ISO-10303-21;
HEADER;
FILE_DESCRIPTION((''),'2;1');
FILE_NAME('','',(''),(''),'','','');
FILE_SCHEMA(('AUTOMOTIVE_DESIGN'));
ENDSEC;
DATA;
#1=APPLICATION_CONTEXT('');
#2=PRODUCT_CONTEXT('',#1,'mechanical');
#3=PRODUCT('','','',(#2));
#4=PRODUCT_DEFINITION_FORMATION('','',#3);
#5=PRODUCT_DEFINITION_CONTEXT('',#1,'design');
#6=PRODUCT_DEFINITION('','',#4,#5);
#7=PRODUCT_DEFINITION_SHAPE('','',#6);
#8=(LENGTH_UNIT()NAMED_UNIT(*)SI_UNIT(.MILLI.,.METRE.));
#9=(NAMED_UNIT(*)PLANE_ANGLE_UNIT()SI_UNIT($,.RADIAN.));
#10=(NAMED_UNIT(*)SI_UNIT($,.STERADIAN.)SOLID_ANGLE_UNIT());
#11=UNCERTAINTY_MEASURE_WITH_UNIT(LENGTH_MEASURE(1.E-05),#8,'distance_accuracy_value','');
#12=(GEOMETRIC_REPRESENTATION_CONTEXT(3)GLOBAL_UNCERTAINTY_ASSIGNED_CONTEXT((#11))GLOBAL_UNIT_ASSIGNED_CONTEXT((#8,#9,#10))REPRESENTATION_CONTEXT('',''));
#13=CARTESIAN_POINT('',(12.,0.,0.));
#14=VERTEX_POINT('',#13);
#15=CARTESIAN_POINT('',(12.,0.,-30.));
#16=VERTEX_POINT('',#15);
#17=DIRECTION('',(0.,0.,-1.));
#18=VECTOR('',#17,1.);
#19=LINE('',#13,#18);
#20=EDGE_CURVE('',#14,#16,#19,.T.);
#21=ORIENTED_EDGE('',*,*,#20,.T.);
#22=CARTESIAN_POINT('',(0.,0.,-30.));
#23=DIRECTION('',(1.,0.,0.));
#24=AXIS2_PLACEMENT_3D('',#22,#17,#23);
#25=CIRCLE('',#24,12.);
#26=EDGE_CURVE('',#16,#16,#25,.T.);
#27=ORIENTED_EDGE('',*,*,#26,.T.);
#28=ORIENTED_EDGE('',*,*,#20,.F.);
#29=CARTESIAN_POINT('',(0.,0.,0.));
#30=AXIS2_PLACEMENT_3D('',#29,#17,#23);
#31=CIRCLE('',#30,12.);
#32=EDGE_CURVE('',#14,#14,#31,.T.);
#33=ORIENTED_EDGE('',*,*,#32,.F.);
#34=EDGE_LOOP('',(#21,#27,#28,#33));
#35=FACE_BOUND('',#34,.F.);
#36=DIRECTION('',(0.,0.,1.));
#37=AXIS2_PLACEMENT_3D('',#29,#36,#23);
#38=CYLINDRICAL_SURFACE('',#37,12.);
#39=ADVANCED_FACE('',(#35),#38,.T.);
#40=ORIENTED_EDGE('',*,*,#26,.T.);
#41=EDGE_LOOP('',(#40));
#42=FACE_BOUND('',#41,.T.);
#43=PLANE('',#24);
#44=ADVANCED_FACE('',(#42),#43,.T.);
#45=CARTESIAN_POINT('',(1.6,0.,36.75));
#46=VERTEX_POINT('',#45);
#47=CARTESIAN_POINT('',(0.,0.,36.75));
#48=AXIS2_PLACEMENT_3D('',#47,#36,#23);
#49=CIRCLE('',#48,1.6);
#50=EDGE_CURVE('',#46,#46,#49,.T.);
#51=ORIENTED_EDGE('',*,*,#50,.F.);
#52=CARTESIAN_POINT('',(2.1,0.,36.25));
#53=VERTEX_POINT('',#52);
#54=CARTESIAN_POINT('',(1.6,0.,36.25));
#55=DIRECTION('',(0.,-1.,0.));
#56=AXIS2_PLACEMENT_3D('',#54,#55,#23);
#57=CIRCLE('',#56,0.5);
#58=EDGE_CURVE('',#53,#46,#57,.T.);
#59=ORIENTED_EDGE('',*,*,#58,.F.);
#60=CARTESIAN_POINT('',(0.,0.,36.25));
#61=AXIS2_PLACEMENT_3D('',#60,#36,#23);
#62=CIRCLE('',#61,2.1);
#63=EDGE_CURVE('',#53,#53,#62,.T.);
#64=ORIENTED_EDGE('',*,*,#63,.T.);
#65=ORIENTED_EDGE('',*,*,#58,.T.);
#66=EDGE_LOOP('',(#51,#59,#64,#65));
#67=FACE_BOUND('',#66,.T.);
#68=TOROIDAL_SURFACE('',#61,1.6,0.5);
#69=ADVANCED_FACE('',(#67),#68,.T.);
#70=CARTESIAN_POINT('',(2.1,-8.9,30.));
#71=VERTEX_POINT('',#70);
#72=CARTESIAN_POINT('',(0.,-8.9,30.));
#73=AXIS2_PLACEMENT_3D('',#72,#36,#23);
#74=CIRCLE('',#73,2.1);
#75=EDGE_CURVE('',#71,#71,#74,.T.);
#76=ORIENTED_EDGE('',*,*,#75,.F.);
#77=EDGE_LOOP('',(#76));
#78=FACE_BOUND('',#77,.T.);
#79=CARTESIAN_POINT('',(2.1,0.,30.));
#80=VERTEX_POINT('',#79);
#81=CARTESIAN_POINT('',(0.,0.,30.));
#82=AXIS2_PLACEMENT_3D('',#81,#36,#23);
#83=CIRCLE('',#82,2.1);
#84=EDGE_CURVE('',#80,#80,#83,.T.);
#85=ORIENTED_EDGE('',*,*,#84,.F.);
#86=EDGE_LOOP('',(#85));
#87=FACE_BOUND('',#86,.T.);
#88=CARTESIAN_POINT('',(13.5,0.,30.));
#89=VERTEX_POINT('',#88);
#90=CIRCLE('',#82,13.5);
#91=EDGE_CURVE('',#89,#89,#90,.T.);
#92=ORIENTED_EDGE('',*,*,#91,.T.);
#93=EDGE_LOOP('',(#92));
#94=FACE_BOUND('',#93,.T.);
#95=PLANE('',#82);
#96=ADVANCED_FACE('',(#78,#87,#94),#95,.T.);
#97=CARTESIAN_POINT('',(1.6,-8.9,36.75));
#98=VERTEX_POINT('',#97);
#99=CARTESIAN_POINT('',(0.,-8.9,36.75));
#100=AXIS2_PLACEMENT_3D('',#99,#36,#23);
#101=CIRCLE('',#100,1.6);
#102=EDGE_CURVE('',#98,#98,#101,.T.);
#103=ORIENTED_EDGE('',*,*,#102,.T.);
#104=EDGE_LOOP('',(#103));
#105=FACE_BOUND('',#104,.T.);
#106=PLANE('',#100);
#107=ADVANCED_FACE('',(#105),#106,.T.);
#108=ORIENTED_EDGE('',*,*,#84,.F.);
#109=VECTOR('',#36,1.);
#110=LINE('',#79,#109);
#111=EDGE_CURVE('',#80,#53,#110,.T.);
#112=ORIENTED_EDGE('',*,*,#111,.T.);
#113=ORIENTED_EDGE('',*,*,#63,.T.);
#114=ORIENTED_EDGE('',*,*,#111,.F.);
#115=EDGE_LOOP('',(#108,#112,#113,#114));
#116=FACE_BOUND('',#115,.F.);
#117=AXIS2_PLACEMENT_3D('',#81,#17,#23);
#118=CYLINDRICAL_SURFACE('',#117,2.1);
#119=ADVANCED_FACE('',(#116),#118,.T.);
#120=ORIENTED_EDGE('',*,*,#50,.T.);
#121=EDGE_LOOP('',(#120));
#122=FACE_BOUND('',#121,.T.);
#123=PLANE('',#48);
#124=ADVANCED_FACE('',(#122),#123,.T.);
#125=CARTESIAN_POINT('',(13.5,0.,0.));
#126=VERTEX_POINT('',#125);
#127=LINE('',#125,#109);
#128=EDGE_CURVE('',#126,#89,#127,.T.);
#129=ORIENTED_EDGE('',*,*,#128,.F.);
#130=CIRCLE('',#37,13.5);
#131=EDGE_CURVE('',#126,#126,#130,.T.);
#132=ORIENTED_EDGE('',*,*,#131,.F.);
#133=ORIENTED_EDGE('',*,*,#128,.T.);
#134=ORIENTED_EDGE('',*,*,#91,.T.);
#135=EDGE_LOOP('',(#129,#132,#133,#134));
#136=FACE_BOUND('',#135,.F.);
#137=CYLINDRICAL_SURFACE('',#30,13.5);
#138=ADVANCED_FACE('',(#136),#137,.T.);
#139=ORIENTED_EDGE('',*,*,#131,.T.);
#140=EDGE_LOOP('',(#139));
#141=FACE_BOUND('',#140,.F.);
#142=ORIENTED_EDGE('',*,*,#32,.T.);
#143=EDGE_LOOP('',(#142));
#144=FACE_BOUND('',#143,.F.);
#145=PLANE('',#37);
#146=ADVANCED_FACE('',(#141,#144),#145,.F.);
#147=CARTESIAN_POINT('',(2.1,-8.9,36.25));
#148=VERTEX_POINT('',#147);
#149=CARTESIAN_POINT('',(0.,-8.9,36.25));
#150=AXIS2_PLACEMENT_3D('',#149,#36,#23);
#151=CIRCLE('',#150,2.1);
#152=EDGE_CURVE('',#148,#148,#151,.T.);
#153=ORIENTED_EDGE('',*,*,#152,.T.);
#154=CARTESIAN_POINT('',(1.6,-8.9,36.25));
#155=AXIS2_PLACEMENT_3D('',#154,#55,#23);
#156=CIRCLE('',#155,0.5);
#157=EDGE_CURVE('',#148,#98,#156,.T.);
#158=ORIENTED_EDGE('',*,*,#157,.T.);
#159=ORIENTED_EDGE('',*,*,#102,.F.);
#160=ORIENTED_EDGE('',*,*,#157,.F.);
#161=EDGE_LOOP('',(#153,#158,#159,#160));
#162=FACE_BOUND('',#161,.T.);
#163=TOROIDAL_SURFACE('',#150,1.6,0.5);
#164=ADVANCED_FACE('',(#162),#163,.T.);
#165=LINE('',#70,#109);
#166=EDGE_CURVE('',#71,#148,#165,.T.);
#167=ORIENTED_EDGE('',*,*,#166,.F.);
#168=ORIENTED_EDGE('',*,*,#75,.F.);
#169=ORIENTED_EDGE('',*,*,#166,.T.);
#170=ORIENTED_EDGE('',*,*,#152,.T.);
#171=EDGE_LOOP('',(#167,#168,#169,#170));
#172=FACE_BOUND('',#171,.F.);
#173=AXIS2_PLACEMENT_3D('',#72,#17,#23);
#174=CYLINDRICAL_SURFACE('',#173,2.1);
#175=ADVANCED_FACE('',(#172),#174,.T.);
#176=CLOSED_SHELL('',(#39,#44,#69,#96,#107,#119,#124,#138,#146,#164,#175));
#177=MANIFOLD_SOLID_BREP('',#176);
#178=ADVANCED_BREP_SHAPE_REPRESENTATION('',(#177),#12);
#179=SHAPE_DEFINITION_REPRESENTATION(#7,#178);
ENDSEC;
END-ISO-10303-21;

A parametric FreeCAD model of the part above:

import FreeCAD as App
import Part
import Sketcher
from FreeCAD import Vector


def edges_at(feature, points):
    """Names of the edges that pass closest to the given points."""
    edges = feature.Shape.Edges
    near = lambda p: min(range(len(edges)), key=lambda i: edges[i].distToShape(Part.Vertex(*p))[0])
    return sorted({f"Edge{near(p) + 1}" for p in points})

doc = App.newDocument("Part")
body = doc.addObject("PartDesign::Body", "Body")

# Sketch on XY plane
sketch1 = body.newObject("Sketcher::SketchObject", "Sketch")
sketch1.AttachmentSupport = (doc.getObject("XY_Plane"), [""])
sketch1.MapMode = "FlatFace"
sketch1.addGeometry(Part.Circle(Vector(0, 0, 0), Vector(0, 0, 1), 14), False)
sketch1.addConstraint([
    Sketcher.Constraint("Coincident", 0, 3, -1, 1),
    Sketcher.Constraint("Diameter", 0, 27.0),
])
pad1 = body.newObject("PartDesign::Pad", "Pad")
pad1.Profile = sketch1
pad1.Length = 30

# Sketch on XY plane
sketch2 = body.newObject("Sketcher::SketchObject", "Sketch001")
sketch2.AttachmentSupport = (doc.getObject("XY_Plane"), [""])
sketch2.MapMode = "FlatFace"
sketch2.addGeometry(Part.Circle(Vector(0, 0, 0), Vector(0, 0, 1), 12), False)
sketch2.addConstraint([
    Sketcher.Constraint("Coincident", 0, 3, -1, 1),
    Sketcher.Constraint("Diameter", 0, 24.0),
])
pad2 = body.newObject("PartDesign::Pad", "Pad001")
pad2.Profile = sketch2
pad2.Length = 30
pad2.Reversed = True

# Sketch on XY plane
sketch3 = body.newObject("Sketcher::SketchObject", "Sketch002")
sketch3.AttachmentSupport = (doc.getObject("XY_Plane"), [""])
sketch3.MapMode = "FlatFace"
sketch3.AttachmentOffset = App.Placement(Vector(0, 0, 30), App.Rotation())
sketch3.addGeometry([
    Part.Circle(Vector(0, 0, 0), Vector(0, 0, 1), 2.1),
    Part.Circle(Vector(0, -8.9, 0), Vector(0, 0, 1), 2.1),
], False)
sketch3.addConstraint([
    Sketcher.Constraint("Coincident", 0, 3, -1, 1),
    Sketcher.Constraint("Equal", 0, 1),
    Sketcher.Constraint("PointOnObject", 1, 3, -2),
    Sketcher.Constraint("Diameter", 0, 4.2),
    Sketcher.Constraint("DistanceY", 1, 3, -1, 1, 8.9),
])
pad3 = body.newObject("PartDesign::Pad", "Pad002")
pad3.Profile = sketch3
pad3.Length = 6.75
doc.recompute()

fillet = body.newObject("PartDesign::Fillet", "Fillet")
fillet.Base = (pad3, edges_at(pad3, [(-2.1, 0, 36.75)]))
fillet.Radius = 0.5
doc.recompute()

fillet2 = body.newObject("PartDesign::Fillet", "Fillet001")
fillet2.Base = (fillet, edges_at(fillet, [(-2.1, -8.9, 36.75)]))
fillet2.Radius = 0.5

doc.recompute()
